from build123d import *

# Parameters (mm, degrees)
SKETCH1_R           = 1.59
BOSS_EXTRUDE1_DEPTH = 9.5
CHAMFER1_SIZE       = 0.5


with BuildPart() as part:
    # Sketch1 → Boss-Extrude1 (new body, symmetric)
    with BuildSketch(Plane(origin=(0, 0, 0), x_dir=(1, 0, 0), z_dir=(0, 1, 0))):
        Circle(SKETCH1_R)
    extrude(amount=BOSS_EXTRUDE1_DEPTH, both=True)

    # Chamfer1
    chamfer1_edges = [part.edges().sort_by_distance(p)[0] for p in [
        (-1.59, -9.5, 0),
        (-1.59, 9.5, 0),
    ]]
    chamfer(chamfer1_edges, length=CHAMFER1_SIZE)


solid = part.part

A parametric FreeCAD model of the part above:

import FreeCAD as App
import Part
import Sketcher
from FreeCAD import Vector
Q = App.Units.Quantity


def edges_at(feature, points):
    """Names of the edges that pass closest to the given points."""
    edges = feature.Shape.Edges
    near = lambda p: min(range(len(edges)), key=lambda i: edges[i].distToShape(Part.Vertex(*p))[0])
    return sorted({f"Edge{near(p) + 1}" for p in points})

doc = App.newDocument("Part")
body = doc.addObject("PartDesign::Body", "Body")

sketch1 = doc.addObject("Sketcher::SketchObject", "Sketch")
body.addObject(sketch1)
sketch1.AttachmentSupport = (doc.XZ_Plane, [""])
sketch1.MapMode = "FlatFace"
sketch1.addGeometry(Part.Circle(Vector(0, 0, 0), Vector(0, 0, 1), 1.6), False)
sketch1.addConstraint(Sketcher.Constraint("Coincident", 0, 3, -1, 1))
sketch1.addConstraint(Sketcher.Constraint("Diameter", 0, Q("3.18 mm")))
pad1 = doc.addObject("PartDesign::Pad", "Pad")
body.addObject(pad1)
pad1.Profile = sketch1
pad1.Length = 19
pad1.Midplane = True
doc.recompute()

chamfer = doc.addObject("PartDesign::Chamfer", "Chamfer")
body.addObject(chamfer)
chamfer.Base = (pad1, edges_at(pad1, [(-1.59, -9.5, 0), (-1.59, 9.5, 0)]))
chamfer.Size = 0.5

doc.recompute()
